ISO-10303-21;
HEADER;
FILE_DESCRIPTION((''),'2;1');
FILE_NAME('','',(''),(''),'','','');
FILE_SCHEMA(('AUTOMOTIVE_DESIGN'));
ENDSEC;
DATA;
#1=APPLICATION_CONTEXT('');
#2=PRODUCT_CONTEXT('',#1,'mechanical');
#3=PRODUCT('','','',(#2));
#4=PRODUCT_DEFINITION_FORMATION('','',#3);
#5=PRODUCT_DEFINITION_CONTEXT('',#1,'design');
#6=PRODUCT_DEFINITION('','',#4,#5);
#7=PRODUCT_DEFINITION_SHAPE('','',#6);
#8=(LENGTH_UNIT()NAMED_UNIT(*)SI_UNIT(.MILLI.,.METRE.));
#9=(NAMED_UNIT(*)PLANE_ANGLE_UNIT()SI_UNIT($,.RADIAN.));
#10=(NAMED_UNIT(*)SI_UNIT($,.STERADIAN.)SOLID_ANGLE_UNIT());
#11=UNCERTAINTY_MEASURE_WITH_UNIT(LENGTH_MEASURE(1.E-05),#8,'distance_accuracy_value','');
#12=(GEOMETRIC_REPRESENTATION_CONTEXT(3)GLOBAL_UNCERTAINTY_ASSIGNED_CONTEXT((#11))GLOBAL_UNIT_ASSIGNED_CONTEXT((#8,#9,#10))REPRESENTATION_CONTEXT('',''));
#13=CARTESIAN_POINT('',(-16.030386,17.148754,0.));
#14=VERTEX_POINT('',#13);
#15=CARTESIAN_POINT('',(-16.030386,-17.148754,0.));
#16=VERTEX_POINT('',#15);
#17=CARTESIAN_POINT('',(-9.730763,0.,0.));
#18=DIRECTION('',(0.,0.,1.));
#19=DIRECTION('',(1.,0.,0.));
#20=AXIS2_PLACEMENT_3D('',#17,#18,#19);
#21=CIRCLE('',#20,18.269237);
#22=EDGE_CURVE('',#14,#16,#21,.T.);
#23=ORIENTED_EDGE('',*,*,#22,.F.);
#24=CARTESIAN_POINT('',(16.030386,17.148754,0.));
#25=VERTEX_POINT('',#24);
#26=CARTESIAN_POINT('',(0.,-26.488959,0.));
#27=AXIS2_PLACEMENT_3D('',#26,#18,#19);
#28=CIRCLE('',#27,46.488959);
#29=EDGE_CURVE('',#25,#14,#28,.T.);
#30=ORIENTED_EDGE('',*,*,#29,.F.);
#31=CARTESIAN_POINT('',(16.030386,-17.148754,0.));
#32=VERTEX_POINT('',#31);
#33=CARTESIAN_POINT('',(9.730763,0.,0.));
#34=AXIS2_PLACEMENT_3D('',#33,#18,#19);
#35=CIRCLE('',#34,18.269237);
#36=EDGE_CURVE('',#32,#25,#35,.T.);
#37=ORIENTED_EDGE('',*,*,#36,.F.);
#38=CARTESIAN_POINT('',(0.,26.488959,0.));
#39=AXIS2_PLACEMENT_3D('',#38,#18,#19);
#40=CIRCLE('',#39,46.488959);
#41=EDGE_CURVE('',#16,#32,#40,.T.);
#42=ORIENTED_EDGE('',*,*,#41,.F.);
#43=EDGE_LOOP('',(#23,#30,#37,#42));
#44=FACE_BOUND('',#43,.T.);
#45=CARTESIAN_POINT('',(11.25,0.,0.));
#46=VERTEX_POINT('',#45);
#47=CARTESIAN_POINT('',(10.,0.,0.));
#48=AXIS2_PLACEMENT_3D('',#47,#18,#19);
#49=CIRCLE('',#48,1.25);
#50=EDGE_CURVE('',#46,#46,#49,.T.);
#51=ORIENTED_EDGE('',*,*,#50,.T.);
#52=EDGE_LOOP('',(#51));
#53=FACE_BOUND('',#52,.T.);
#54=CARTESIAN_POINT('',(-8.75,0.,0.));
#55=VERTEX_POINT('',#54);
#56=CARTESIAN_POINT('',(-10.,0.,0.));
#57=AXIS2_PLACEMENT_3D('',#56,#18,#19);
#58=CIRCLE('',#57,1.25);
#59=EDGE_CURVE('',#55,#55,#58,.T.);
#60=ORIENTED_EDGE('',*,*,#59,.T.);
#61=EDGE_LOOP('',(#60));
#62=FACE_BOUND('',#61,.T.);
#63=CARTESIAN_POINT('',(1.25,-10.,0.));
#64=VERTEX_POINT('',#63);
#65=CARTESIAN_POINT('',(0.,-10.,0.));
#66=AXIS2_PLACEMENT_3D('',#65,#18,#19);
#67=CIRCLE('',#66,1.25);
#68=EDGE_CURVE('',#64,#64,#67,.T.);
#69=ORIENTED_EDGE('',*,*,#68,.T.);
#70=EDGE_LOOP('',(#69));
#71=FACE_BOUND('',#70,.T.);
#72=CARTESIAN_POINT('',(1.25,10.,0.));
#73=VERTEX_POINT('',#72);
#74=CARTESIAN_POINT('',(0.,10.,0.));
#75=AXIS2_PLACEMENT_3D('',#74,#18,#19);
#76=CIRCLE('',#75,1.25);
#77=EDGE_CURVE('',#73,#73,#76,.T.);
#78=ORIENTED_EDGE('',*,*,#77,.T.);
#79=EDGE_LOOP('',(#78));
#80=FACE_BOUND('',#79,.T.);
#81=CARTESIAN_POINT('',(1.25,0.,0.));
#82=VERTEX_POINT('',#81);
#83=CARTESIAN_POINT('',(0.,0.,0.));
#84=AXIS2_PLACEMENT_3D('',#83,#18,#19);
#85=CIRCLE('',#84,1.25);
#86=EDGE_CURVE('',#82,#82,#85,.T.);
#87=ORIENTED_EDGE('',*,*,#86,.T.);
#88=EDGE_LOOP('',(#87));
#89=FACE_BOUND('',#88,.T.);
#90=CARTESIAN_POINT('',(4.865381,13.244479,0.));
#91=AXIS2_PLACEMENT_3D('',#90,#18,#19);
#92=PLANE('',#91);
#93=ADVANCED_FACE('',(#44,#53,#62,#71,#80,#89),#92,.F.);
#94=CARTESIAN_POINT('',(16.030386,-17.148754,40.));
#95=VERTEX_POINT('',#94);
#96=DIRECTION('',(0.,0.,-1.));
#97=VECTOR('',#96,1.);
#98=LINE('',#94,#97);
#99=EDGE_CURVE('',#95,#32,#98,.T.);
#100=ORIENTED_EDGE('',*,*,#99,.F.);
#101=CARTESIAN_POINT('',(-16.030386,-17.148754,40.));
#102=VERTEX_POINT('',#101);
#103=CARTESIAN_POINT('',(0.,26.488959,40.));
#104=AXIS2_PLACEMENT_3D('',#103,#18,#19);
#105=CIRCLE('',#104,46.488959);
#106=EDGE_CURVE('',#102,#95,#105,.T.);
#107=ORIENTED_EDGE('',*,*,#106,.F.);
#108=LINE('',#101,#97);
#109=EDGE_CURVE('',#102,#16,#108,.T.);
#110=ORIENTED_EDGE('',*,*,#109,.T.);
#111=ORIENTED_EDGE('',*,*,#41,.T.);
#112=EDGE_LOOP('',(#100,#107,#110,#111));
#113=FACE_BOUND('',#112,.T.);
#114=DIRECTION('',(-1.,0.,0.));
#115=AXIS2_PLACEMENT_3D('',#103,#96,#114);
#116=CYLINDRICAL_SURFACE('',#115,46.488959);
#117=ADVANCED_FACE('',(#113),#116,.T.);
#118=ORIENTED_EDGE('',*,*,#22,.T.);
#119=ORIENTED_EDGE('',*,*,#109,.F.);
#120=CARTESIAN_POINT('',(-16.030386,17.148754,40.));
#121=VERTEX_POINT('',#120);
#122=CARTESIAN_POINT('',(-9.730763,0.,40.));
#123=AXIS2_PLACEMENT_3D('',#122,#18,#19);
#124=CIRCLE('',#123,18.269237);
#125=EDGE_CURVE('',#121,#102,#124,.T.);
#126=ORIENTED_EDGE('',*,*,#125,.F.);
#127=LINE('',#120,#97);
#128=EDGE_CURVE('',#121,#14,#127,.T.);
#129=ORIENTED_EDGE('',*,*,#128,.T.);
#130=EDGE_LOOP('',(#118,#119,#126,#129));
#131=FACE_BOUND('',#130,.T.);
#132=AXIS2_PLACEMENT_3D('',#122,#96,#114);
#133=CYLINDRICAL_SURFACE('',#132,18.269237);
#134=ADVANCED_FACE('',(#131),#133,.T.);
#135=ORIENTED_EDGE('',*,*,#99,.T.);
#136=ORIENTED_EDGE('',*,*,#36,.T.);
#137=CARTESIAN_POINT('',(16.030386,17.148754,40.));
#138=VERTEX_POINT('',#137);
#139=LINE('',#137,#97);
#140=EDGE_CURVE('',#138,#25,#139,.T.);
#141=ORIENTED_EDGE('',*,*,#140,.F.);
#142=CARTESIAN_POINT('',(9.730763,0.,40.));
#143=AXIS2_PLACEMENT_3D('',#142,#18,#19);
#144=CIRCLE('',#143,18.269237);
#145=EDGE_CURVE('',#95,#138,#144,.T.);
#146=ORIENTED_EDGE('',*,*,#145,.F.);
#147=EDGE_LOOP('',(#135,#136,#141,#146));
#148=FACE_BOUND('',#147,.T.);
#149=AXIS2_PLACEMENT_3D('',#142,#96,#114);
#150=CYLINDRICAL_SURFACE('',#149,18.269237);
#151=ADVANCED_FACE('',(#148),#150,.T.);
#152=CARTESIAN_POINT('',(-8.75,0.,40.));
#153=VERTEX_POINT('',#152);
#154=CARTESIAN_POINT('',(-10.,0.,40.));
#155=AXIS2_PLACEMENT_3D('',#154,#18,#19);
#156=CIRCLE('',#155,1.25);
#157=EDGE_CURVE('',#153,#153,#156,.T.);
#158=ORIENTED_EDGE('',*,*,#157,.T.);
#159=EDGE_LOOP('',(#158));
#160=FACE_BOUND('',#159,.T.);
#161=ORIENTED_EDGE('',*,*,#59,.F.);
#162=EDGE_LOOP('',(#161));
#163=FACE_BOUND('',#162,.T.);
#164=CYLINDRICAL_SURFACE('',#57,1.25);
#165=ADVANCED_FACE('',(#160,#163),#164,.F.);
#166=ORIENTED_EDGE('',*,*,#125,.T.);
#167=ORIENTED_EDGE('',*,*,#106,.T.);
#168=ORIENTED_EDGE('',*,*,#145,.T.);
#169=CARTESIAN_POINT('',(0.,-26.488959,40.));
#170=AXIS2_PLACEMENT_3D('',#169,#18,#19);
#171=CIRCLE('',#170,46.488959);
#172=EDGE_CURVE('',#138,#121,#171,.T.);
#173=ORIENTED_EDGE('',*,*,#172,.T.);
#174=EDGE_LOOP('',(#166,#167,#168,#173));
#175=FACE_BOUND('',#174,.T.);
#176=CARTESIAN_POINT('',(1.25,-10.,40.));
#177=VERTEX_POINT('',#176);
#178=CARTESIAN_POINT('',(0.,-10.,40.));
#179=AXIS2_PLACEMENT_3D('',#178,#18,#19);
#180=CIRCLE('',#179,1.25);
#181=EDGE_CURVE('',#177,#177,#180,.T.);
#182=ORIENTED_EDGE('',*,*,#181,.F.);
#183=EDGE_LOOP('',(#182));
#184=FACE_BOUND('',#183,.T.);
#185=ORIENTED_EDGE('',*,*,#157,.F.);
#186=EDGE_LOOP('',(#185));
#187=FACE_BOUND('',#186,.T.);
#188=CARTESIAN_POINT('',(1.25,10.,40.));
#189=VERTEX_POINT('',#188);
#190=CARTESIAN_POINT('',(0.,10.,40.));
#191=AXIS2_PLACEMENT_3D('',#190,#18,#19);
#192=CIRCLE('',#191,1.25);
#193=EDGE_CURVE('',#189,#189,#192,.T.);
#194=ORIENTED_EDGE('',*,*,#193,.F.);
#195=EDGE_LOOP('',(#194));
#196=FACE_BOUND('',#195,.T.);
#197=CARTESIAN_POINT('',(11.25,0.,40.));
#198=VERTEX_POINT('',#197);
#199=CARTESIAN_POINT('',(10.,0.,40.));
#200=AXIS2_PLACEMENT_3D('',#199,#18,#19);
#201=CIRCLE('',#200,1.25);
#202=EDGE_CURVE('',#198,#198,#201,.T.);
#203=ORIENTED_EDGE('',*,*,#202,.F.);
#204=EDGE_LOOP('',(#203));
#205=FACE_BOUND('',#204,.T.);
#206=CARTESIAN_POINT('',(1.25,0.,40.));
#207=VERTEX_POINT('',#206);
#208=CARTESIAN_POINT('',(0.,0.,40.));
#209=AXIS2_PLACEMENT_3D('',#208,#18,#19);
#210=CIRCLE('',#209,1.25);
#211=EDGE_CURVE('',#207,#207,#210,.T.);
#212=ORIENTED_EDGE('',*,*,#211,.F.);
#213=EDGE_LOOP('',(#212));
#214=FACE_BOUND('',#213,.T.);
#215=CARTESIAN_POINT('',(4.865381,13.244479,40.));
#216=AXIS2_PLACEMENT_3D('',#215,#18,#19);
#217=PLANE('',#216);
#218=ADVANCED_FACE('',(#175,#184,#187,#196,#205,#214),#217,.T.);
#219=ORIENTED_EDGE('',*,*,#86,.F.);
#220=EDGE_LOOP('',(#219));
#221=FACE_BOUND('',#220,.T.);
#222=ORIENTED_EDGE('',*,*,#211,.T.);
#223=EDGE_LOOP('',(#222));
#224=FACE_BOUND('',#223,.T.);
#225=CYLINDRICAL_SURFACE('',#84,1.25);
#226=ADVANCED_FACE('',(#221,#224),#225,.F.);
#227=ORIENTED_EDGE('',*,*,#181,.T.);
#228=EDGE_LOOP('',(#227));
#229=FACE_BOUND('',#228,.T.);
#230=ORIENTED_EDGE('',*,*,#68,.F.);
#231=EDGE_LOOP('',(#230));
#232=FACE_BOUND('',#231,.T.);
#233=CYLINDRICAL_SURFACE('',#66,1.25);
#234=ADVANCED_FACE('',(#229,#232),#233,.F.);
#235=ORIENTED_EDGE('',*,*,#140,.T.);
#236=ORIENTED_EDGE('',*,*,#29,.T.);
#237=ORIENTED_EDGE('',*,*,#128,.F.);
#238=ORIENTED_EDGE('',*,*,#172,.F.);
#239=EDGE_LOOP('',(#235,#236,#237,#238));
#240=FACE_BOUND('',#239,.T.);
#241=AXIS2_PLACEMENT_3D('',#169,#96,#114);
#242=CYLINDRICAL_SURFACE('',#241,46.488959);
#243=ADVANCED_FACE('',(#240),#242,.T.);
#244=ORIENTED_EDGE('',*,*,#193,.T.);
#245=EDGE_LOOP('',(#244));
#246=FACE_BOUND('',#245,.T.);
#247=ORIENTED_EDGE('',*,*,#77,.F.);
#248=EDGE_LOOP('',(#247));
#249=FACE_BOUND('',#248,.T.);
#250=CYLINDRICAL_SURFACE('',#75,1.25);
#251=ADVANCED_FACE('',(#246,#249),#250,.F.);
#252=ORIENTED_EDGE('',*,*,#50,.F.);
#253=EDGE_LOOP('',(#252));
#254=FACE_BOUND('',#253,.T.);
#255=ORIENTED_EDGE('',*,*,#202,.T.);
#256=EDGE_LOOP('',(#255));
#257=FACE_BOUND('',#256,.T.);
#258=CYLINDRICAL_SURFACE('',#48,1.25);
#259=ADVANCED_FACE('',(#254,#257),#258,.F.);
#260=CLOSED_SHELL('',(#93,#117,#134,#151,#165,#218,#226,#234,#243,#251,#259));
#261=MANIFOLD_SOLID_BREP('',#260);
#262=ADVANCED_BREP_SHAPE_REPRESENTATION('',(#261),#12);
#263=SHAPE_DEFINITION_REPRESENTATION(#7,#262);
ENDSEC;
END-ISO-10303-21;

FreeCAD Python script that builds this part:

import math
import FreeCAD as App
import Part
import Sketcher

doc = App.newDocument("Part")
body = doc.addObject("PartDesign::Body", "Body")

# Sketch on XY plane
sketch1 = doc.addObject("Sketcher::SketchObject", "Sketch")
body.addObject(sketch1)
sketch1.AttachmentSupport = (doc.XY_Plane, [""])
sketch1.MapMode = "FlatFace"
sketch1.addGeometry([
    Part.ArcOfCircle(Part.Circle(App.Vector(-9.730763, 0, 0), App.Vector(0, 0, 1), 18.269237), math.radians(110.170891), math.radians(249.829109)),
    Part.ArcOfCircle(Part.Circle(App.Vector(0, 26.488959, 0), App.Vector(0, 0, 1), 46.488959), math.radians(-110.170891), math.radians(-69.829109)),
    Part.ArcOfCircle(Part.Circle(App.Vector(9.730763, 0, 0), App.Vector(0, 0, 1), 18.269237), math.radians(-69.829109), math.radians(69.829109)),
    Part.ArcOfCircle(Part.Circle(App.Vector(0, -26.488959, 0), App.Vector(0, 0, 1), 46.488959), math.radians(69.829109), math.radians(110.170891)),
], False)
sketch1.addConstraint([
    Sketcher.Constraint("Tangent", 0, 2, 1, 1),
    Sketcher.Constraint("Tangent", 1, 2, 2, 1),
    Sketcher.Constraint("Tangent", 2, 2, 3, 1),
    Sketcher.Constraint("Tangent", 3, 2, 0, 1),
    Sketcher.Constraint("Equal", 0, 2),
    Sketcher.Constraint("Equal", 1, 3),
    Sketcher.Constraint("Symmetric", 0, 3, 2, 3, -1, 1),
    Sketcher.Constraint("PointOnObject", 0, 3, -1),
    Sketcher.Constraint("Radius", 1, 46.488959),
    Sketcher.Constraint("Radius", 0, 18.269237),
    Sketcher.Constraint("DistanceY", -1, 1, 1, 3, 26.488959),
])
pad1 = doc.addObject("PartDesign::Pad", "Pad")
body.addObject(pad1)
pad1.Profile = sketch1
pad1.Length = 40

# Sketch on XY plane
sketch2 = doc.addObject("Sketcher::SketchObject", "Sketch001")
body.addObject(sketch2)
sketch2.AttachmentSupport = (doc.XY_Plane, [""])
sketch2.MapMode = "FlatFace"
sketch2.AttachmentOffset = App.Placement(App.Vector(0, 0, 40), App.Rotation())
sketch2.addGeometry([
    Part.Circle(App.Vector(0, 10, 0), App.Vector(0, 0, 1), 1.25),  # 0
    Part.Circle(App.Vector(10, 0, 0), App.Vector(0, 0, 1), 1.25),  # 1
    Part.Circle(App.Vector(0, -10, 0), App.Vector(0, 0, 1), 1.25),  # 2
    Part.Circle(App.Vector(-10, 0, 0), App.Vector(0, 0, 1), 1.25),  # 3
    Part.Circle(App.Vector(0, 0, 0), App.Vector(0, 0, 1), 1.25),  # 4
], False)
sketch2.addConstraint([
    Sketcher.Constraint("Coincident", 4, 3, -1, 1),
    Sketcher.Constraint("Equal", 0, 1),
    Sketcher.Constraint("Equal", 1, 2),
    Sketcher.Constraint("Equal", 2, 3),
    Sketcher.Constraint("Equal", 3, 4),
    Sketcher.Constraint("Symmetric", 0, 3, 2, 3, -1, 1),
    Sketcher.Constraint("Symmetric", 1, 3, 3, 3, -1, 1),
    Sketcher.Constraint("PointOnObject", 0, 3, -2),
    Sketcher.Constraint("PointOnObject", 1, 3, -1),
    Sketcher.Constraint("Diameter", 0, 2.5),
    Sketcher.Constraint("DistanceY", -1, 1, 0, 3, 10.0),
    Sketcher.Constraint("DistanceX", -1, 1, 1, 3, 10.0),
])
pocket1 = doc.addObject("PartDesign::Pocket", "Pocket")
body.addObject(pocket1)
pocket1.Profile = sketch2
pocket1.Type = "ThroughAll"

doc.recompute()
